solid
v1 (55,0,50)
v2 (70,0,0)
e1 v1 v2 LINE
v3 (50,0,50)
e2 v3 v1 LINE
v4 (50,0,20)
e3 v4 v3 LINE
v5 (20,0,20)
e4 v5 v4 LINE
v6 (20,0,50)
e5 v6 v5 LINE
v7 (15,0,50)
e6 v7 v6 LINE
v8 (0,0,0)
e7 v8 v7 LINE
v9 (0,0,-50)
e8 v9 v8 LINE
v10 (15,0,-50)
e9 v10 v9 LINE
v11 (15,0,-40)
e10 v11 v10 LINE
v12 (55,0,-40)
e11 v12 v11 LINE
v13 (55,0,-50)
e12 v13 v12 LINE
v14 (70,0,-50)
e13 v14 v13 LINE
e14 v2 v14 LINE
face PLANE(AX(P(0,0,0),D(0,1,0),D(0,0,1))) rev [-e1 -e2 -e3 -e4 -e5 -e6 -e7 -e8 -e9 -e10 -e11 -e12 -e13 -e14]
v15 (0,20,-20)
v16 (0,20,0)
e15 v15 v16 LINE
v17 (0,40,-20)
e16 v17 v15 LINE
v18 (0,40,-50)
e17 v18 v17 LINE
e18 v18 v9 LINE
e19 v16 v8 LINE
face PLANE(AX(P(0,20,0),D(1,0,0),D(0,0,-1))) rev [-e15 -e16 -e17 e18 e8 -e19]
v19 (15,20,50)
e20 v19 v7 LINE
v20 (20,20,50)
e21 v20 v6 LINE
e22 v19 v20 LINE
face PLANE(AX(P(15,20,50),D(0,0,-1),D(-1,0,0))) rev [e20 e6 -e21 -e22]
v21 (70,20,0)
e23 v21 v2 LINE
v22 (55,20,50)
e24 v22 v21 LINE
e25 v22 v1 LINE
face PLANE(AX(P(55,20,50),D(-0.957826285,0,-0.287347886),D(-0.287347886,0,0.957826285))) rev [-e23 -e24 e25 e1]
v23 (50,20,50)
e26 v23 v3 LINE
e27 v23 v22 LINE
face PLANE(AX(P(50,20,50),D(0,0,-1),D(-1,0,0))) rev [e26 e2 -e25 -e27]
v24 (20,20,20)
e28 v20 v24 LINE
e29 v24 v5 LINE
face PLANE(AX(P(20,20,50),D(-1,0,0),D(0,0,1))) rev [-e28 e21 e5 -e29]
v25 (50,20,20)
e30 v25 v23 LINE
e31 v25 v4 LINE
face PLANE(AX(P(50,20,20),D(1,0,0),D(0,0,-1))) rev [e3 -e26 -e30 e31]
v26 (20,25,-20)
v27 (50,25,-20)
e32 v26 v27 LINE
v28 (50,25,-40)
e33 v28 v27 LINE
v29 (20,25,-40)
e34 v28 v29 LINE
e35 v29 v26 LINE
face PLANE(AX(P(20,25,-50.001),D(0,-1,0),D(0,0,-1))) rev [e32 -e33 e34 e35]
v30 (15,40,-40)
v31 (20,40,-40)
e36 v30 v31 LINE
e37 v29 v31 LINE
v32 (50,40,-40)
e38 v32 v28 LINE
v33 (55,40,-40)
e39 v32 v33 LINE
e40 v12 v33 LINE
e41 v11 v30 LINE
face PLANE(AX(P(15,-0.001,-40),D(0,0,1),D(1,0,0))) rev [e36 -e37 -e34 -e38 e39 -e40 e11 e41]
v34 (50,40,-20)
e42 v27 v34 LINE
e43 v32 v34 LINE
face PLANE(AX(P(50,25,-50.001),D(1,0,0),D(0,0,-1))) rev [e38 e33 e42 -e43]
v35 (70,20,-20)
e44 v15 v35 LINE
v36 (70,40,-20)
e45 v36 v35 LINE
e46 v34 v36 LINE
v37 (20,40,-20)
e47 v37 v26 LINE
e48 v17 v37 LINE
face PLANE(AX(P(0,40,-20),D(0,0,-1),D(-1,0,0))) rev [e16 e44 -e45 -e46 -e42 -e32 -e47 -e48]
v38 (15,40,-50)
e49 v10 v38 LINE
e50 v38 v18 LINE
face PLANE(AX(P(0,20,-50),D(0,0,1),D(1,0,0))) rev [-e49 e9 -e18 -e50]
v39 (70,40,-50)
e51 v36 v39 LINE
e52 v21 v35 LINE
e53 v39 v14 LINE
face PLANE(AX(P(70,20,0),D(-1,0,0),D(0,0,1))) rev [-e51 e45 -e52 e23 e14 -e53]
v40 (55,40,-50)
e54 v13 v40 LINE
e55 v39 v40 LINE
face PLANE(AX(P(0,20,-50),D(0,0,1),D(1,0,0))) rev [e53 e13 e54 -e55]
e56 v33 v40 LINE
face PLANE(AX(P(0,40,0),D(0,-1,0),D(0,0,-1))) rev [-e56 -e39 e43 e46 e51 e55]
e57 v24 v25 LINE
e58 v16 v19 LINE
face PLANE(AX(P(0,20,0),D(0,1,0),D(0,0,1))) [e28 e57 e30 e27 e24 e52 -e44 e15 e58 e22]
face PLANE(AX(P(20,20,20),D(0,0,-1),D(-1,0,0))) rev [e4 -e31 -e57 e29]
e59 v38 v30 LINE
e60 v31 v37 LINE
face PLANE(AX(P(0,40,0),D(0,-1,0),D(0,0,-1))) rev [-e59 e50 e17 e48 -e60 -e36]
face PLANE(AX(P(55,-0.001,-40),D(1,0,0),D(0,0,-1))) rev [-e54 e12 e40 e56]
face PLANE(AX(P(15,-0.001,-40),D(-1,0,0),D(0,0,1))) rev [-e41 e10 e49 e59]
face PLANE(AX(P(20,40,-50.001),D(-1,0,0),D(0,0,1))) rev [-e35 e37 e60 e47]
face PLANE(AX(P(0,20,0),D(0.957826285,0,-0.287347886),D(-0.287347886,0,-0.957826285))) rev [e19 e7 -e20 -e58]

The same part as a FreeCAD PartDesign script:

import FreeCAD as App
import Part
import Sketcher
from FreeCAD import Vector
Q = App.Units.Quantity

doc = App.newDocument("Part")
body = doc.addObject("PartDesign::Body", "Body")

# Sketch on XZ plane
sketch1 = doc.addObject("Sketcher::SketchObject", "Sketch")
body.addObject(sketch1)
sketch1.AttachmentSupport = (doc.XZ_Plane, [""])
sketch1.MapMode = "FlatFace"
sketch1.addGeometry([
    Part.LineSegment(Vector(0, -50, 0), Vector(0, 0, 0)),  # 0
    Part.LineSegment(Vector(0, 0, 0), Vector(15, 50, 0)),  # 1
    Part.LineSegment(Vector(15, 50, 0), Vector(20, 50, 0)),  # 2
    Part.LineSegment(Vector(20, 50, 0), Vector(20, 20, 0)),  # 3
    Part.LineSegment(Vector(20, 20, 0), Vector(50, 20, 0)),  # 4
    Part.LineSegment(Vector(50, 20, 0), Vector(50, 50, 0)),  # 5
    Part.LineSegment(Vector(50, 50, 0), Vector(55, 50, 0)),  # 6
    Part.LineSegment(Vector(55, 50, 0), Vector(70, 0, 0)),  # 7
    Part.LineSegment(Vector(70, 0, 0), Vector(70, -50, 0)),  # 8
    Part.LineSegment(Vector(70, -50, 0), Vector(0, -50, 0)),  # 9
], False)
sketch1.addConstraint([
    Sketcher.Constraint("Coincident", 0, 2, 1, 1),
    Sketcher.Constraint("Coincident", 1, 2, 2, 1),
    Sketcher.Constraint("Coincident", 2, 2, 3, 1),
    Sketcher.Constraint("Coincident", 3, 2, 4, 1),
    Sketcher.Constraint("Coincident", 4, 2, 5, 1),
    Sketcher.Constraint("Coincident", 5, 2, 6, 1),
    Sketcher.Constraint("Coincident", 6, 2, 7, 1),
    Sketcher.Constraint("Coincident", 7, 2, 8, 1),
    Sketcher.Constraint("Coincident", 8, 2, 9, 1),
    Sketcher.Constraint("Coincident", 9, 2, 0, 1),
    Sketcher.Constraint("Vertical", 0),
    Sketcher.Constraint("Horizontal", 2),
    Sketcher.Constraint("Vertical", 3),
    Sketcher.Constraint("Horizontal", 4),
    Sketcher.Constraint("Vertical", 5),
    Sketcher.Constraint("Horizontal", 6),
    Sketcher.Constraint("Vertical", 8),
    Sketcher.Constraint("Horizontal", 9),
    Sketcher.Constraint("Coincident", 0, 2, -1, 1),
    Sketcher.Constraint("PointOnObject", 7, 2, -1),
    Sketcher.Constraint("Horizontal", 2, 2, 5, 2),
    Sketcher.Constraint("Equal", 2, 6),
    Sketcher.Constraint("Equal", 4, 3),
    Sketcher.Constraint("Equal", 1, 7),
    Sketcher.Constraint("DistanceX", 2, 1, 2, 2, Q("5 mm")),
    Sketcher.Constraint("DistanceX", 4, 1, 4, 2, Q("30 mm")),
    Sketcher.Constraint("DistanceX", 9, 2, 9, 1, Q("70 mm")),
    Sketcher.Constraint("DistanceY", 0, 1, 0, 2, Q("50 mm")),
    Sketcher.Constraint("DistanceY", -1, 1, 1, 2, Q("50 mm")),
])
pad1 = doc.addObject("PartDesign::Pad", "Pad")
body.addObject(pad1)
pad1.Profile = sketch1
pad1.Length = 20
pad1.Reversed = True

# Sketch on XZ plane
sketch2 = doc.addObject("Sketcher::SketchObject", "Sketch001")
body.addObject(sketch2)
sketch2.AttachmentSupport = (doc.XZ_Plane, [""])
sketch2.MapMode = "FlatFace"
sketch2.AttachmentOffset = App.Placement(Vector(0, 0, -20), App.Rotation())
sketch2.addGeometry([
    Part.LineSegment(Vector(0, -50, 0), Vector(0, -20, 0)),
    Part.LineSegment(Vector(0, -20, 0), Vector(70, -20, 0)),
    Part.LineSegment(Vector(70, -20, 0), Vector(70, -50, 0)),
    Part.LineSegment(Vector(70, -50, 0), Vector(0, -50, 0)),
], False)
sketch2.addConstraint([
    Sketcher.Constraint("Coincident", 0, 2, 1, 1),
    Sketcher.Constraint("Coincident", 1, 2, 2, 1),
    Sketcher.Constraint("Coincident", 2, 2, 3, 1),
    Sketcher.Constraint("Coincident", 3, 2, 0, 1),
    Sketcher.Constraint("Vertical", 0),
    Sketcher.Constraint("Horizontal", 1),
    Sketcher.Constraint("Vertical", 2),
    Sketcher.Constraint("Horizontal", 3),
    Sketcher.Constraint("PointOnObject", 0, 2, -2),
    Sketcher.Constraint("DistanceX", 1, 1, 1, 2, Q("70 mm")),
    Sketcher.Constraint("DistanceY", 0, 1, 0, 2, Q("30 mm")),
    Sketcher.Constraint("DistanceY", 0, 2, -1, 1, Q("20 mm")),
])
pad2 = doc.addObject("PartDesign::Pad", "Pad001")
body.addObject(pad2)
pad2.Profile = sketch2
pad2.Length = 20
pad2.Reversed = True

# Sketch on XZ plane
sketch3 = doc.addObject("Sketcher::SketchObject", "Sketch002")
body.addObject(sketch3)
sketch3.AttachmentSupport = (doc.XZ_Plane, [""])
sketch3.MapMode = "FlatFace"
sketch3.AttachmentOffset = App.Placement(Vector(0, 0, -40), App.Rotation())
sketch3.addGeometry([
    Part.LineSegment(Vector(15, -50, 0), Vector(15, -40, 0)),
    Part.LineSegment(Vector(15, -40, 0), Vector(55, -40, 0)),
    Part.LineSegment(Vector(55, -40, 0), Vector(55, -50, 0)),
    Part.LineSegment(Vector(55, -50, 0), Vector(15, -50, 0)),
], False)
sketch3.addConstraint([
    Sketcher.Constraint("Coincident", 0, 2, 1, 1),
    Sketcher.Constraint("Coincident", 1, 2, 2, 1),
    Sketcher.Constraint("Coincident", 2, 2, 3, 1),
    Sketcher.Constraint("Coincident", 3, 2, 0, 1),
    Sketcher.Constraint("Vertical", 0),
    Sketcher.Constraint("Horizontal", 1),
    Sketcher.Constraint("Vertical", 2),
    Sketcher.Constraint("Horizontal", 3),
    Sketcher.Constraint("DistanceX", 1, 1, 1, 2, Q("40 mm")),
    Sketcher.Constraint("DistanceY", 0, 1, 0, 2, Q("10 mm")),
    Sketcher.Constraint("DistanceX", -1, 1, 0, 2, Q("15 mm")),
    Sketcher.Constraint("DistanceY", 0, 2, -1, 1, Q("40 mm")),
])
pocket1 = doc.addObject("PartDesign::Pocket", "Pocket")
body.addObject(pocket1)
pocket1.Profile = sketch3
pocket1.Type = "UpToFirst"
pocket1.Reversed = True

# Sketch on XY plane
sketch4 = doc.addObject("Sketcher::SketchObject", "Sketch003")
body.addObject(sketch4)
sketch4.AttachmentSupport = (doc.XY_Plane, [""])
sketch4.MapMode = "FlatFace"
sketch4.AttachmentOffset = App.Placement(Vector(0, 0, -20), App.Rotation())
sketch4.addGeometry([
    Part.LineSegment(Vector(20, 40, 0), Vector(20, 25, 0)),
    Part.LineSegment(Vector(20, 25, 0), Vector(50, 25, 0)),
    Part.LineSegment(Vector(50, 25, 0), Vector(50, 40, 0)),
    Part.LineSegment(Vector(50, 40, 0), Vector(20, 40, 0)),
], False)
sketch4.addConstraint([
    Sketcher.Constraint("Coincident", 0, 2, 1, 1),
    Sketcher.Constraint("Coincident", 1, 2, 2, 1),
    Sketcher.Constraint("Coincident", 2, 2, 3, 1),
    Sketcher.Constraint("Coincident", 3, 2, 0, 1),
    Sketcher.Constraint("Vertical", 0),
    Sketcher.Constraint("Horizontal", 1),
    Sketcher.Constraint("Vertical", 2),
    Sketcher.Constraint("Horizontal", 3),
    Sketcher.Constraint("DistanceX", 1, 1, 1, 2, Q("30 mm")),
    Sketcher.Constraint("DistanceY", 0, 2, 0, 1, Q("15 mm")),
    Sketcher.Constraint("DistanceX", -1, 1, 0, 2, Q("20 mm")),
    Sketcher.Constraint("DistanceY", -1, 1, 0, 2, Q("25 mm")),
])
pocket2 = doc.addObject("PartDesign::Pocket", "Pocket001")
body.addObject(pocket2)
pocket2.Profile = sketch4
pocket2.Type = "UpToFirst"

doc.recompute()
